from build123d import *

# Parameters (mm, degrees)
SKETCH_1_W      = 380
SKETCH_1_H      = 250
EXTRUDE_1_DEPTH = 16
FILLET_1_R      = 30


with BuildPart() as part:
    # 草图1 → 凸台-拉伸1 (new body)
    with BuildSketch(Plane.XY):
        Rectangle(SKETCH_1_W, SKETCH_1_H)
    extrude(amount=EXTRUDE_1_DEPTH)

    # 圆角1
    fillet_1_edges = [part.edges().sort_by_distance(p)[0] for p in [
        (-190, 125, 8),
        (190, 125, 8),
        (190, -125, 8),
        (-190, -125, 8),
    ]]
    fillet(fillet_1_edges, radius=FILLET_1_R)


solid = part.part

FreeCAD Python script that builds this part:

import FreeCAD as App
import Part
import Sketcher
from FreeCAD import Vector
Q = App.Units.Quantity


def edges_at(feature, points):
    """Names of the edges that pass closest to the given points."""
    edges = feature.Shape.Edges
    near = lambda p: min(range(len(edges)), key=lambda i: edges[i].distToShape(Part.Vertex(*p))[0])
    return sorted({f"Edge{near(p) + 1}" for p in points})


def add_polygon(sketch, points):
    """Adds a closed chain of lines whose ends are joined by coincident constraints."""
    first, n = sketch.GeometryCount, len(points)
    for a, b in zip(points, points[1:] + points[:1]):
        sketch.addGeometry(Part.LineSegment(App.Vector(*a, 0), App.Vector(*b, 0)), False)
    for i in range(n):
        sketch.addConstraint(Sketcher.Constraint("Coincident", first + i, 2, first + (i + 1) % n, 1))

doc = App.newDocument("Part")
body = doc.addObject("PartDesign::Body", "Body")

sketch1 = doc.addObject("Sketcher::SketchObject", "Sketch")
body.addObject(sketch1)
sketch1.AttachmentSupport = (doc.XY_Plane, [""])
sketch1.MapMode = "FlatFace"
add_polygon(sketch1, [(-190, 125), (-190, -125), (190, -125), (190, 125)])
sketch1.addConstraint(Sketcher.Constraint("Vertical", 0))
sketch1.addConstraint(Sketcher.Constraint("Horizontal", 1))
sketch1.addConstraint(Sketcher.Constraint("Vertical", 2))
sketch1.addConstraint(Sketcher.Constraint("Horizontal", 3))
sketch1.addConstraint(Sketcher.Constraint("Symmetric", 0, 2, 2, 2, -1, 1))
sketch1.addConstraint(Sketcher.Constraint("DistanceX", 1, 1, 1, 2, Q("380 mm")))
sketch1.addConstraint(Sketcher.Constraint("DistanceY", 0, 2, 0, 1, Q("250 mm")))
pad1 = doc.addObject("PartDesign::Pad", "Pad")
body.addObject(pad1)
pad1.Profile = sketch1
pad1.Length = 16
doc.recompute()

fillet = doc.addObject("PartDesign::Fillet", "Fillet")
body.addObject(fillet)
fillet.Base = (pad1, edges_at(pad1, [
    (-190, 125, 8),
    (190, 125, 8),
    (190, -125, 8),
    (-190, -125, 8),
]))
fillet.Radius = 30

doc.recompute()
